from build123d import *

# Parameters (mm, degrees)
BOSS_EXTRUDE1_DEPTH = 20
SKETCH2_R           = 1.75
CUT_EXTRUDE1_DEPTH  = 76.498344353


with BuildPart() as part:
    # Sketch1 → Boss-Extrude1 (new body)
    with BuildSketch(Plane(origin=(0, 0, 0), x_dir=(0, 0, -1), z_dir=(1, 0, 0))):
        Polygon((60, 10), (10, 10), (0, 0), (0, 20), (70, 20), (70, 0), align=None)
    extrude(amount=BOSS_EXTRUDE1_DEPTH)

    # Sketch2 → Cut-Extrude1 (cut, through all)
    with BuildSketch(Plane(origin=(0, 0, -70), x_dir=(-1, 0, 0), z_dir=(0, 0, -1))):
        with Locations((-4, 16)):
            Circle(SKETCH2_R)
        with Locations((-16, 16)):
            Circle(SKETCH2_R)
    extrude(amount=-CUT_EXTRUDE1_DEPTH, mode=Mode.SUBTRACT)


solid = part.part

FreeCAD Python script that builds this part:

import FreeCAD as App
import Part
import Sketcher
Q = App.Units.Quantity


def add_polygon(sketch, points):
    """Adds a closed chain of lines whose ends are joined by coincident constraints."""
    first, n = sketch.GeometryCount, len(points)
    for a, b in zip(points, points[1:] + points[:1]):
        sketch.addGeometry(Part.LineSegment(App.Vector(*a, 0), App.Vector(*b, 0)), False)
    for i in range(n):
        sketch.addConstraint(Sketcher.Constraint("Coincident", first + i, 2, first + (i + 1) % n, 1))

doc = App.newDocument("Part")
params = doc.addObject("Spreadsheet::Sheet", "Params")
for row, (alias, value) in enumerate([
    ("sketch1_width", "20 mm"),
    ("sketch1_height", "50 mm"),
    ("sketch1_height2", "70 mm"),
    ("pad1_length", "20 mm"),
    ("sketch2_diameter", "3.5 mm"),
], start=1):
    params.set(f"A{row}", alias)
    params.set(f"B{row}", "=" + value)
    params.setAlias(f"B{row}", alias)

body = doc.addObject("PartDesign::Body", "Body")

sketch1 = body.newObject("Sketcher::SketchObject", "Sketch")
sketch1.AttachmentSupport = (doc.getObject("YZ_Plane"), [""])
sketch1.MapMode = "FlatFace"
add_polygon(sketch1, [(10, -10), (10, -60), (0, -70), (20, -70), (20, 0), (0, 0)])
sketch1.addConstraint([
    Sketcher.Constraint("Vertical", 0),
    Sketcher.Constraint("Horizontal", 2),
    Sketcher.Constraint("Vertical", 3),
    Sketcher.Constraint("Horizontal", 4),
    Sketcher.Constraint("Coincident", 4, 2, -1, 1),
    Sketcher.Constraint("PointOnObject", 1, 2, -2),
    Sketcher.Constraint("Perpendicular", 1, 5),
    Sketcher.Constraint("Equal", 1, 5),
    Sketcher.Constraint("DistanceX", 2, 1, 2, 2, Q("20 mm")),
    Sketcher.Constraint("DistanceY", 0, 2, 0, 1, Q("50 mm")),
    Sketcher.Constraint("DistanceY", 3, 1, 3, 2, Q("70 mm")),
])
sketch1.setExpression("Constraints[14]", "Params.sketch1_width")
sketch1.setExpression("Constraints[15]", "Params.sketch1_height")
sketch1.setExpression("Constraints[16]", "Params.sketch1_height2")
pad1 = body.newObject("PartDesign::Pad", "Pad")
pad1.Profile = sketch1
pad1.setExpression("Length", "Params.pad1_length")

sketch2 = body.newObject("Sketcher::SketchObject", "Sketch001")
sketch2.AttachmentSupport = (doc.getObject("XY_Plane"), [""])
sketch2.MapMode = "FlatFace"
sketch2.AttachmentOffset = App.Placement(App.Vector(0, 0, -70), App.Rotation())
sketch2.addGeometry([
    Part.Circle(App.Vector(4, 16, 0), App.Vector(0, 0, 1), 1.8),
    Part.Circle(App.Vector(16, 16, 0), App.Vector(0, 0, 1), 1.8),
], False)
sketch2.addConstraint([
    Sketcher.Constraint("Equal", 0, 1),
    Sketcher.Constraint("Horizontal", 0, 3, 1, 3),
    Sketcher.Constraint("Diameter", 0, Q("3.5 mm")),
    Sketcher.Constraint("DistanceX", -1, 1, 0, 3, Q("4 mm")),
    Sketcher.Constraint("DistanceY", -1, 1, 0, 3, Q("16 mm")),
    Sketcher.Constraint("DistanceX", -1, 1, 1, 3, Q("16 mm")),
])
sketch2.setExpression("Constraints[2]", "Params.sketch2_diameter")
pocket1 = body.newObject("PartDesign::Pocket", "Pocket")
pocket1.Profile = sketch2
pocket1.Type = "ThroughAll"
pocket1.Reversed = True

doc.recompute()
